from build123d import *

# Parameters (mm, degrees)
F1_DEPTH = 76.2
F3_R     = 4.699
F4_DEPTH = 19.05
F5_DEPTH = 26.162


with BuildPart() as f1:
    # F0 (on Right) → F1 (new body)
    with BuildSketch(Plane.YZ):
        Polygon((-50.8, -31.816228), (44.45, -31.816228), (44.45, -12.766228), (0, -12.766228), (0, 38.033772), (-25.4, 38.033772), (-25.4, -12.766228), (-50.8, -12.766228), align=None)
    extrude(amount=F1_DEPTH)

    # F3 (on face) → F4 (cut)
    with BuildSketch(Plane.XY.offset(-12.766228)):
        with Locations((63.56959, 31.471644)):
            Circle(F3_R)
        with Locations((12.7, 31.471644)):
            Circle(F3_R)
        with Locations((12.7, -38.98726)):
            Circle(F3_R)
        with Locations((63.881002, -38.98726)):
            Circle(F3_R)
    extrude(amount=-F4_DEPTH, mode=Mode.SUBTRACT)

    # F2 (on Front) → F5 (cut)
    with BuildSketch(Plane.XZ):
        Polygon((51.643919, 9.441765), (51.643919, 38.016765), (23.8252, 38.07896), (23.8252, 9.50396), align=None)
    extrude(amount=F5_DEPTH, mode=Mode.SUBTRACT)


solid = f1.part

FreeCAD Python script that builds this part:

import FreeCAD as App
import Part
import Sketcher

V = App.Vector
Q = App.Units.Quantity


def add_polygon(sketch, points):
    """Adds a closed chain of lines whose ends are joined by coincident constraints."""
    first, n = sketch.GeometryCount, len(points)
    for a, b in zip(points, points[1:] + points[:1]):
        sketch.addGeometry(Part.LineSegment(App.Vector(*a, 0), App.Vector(*b, 0)), False)
    for i in range(n):
        sketch.addConstraint(Sketcher.Constraint("Coincident", first + i, 2, first + (i + 1) % n, 1))

doc = App.newDocument("Part")
body = doc.addObject("PartDesign::Body", "Body")

# Sketch on YZ plane
sketch1 = body.newObject("Sketcher::SketchObject", "Sketch")
sketch1.AttachmentSupport = (doc.getObject("YZ_Plane"), [""])
sketch1.MapMode = "FlatFace"
add_polygon(sketch1, [(-50.8, -31.816228), (44.45, -31.816228), (44.45, -12.766228), (0, -12.766228), (0, 38.033772), (-25.4, 38.033772), (-25.4, -12.766228), (-50.8, -12.766228)])  # lines 0-7
sketch1.addConstraint([
    Sketcher.Constraint("Horizontal", 0),
    Sketcher.Constraint("Vertical", 1),
    Sketcher.Constraint("Horizontal", 2),
    Sketcher.Constraint("Vertical", 3),
    Sketcher.Constraint("Horizontal", 4),
    Sketcher.Constraint("Vertical", 5),
    Sketcher.Constraint("Horizontal", 6),
    Sketcher.Constraint("Vertical", 7),
    Sketcher.Constraint("PointOnObject", 2, 2, -2),
    Sketcher.Constraint("Horizontal", 2, 2, 5, 2),
    Sketcher.Constraint("Equal", 4, 6),
    Sketcher.Constraint("DistanceX", 4, 2, 4, 1, Q("1 in")),
    Sketcher.Constraint("DistanceY", 3, 1, 3, 2, Q("2 in")),
    Sketcher.Constraint("DistanceX", 0, 1, 0, 2, Q("3.75 in")),
    Sketcher.Constraint("DistanceY", 1, 1, 1, 2, Q("0.75 in")),
    Sketcher.Constraint("DistanceY", 0, 2, -1, 1, Q("31.816228 mm")),
])
pad1 = body.newObject("PartDesign::Pad", "Pad")
pad1.Profile = sketch1
pad1.Length = Q("3 in")

# Sketch on XY plane
sketch2 = body.newObject("Sketcher::SketchObject", "Sketch001")
sketch2.AttachmentSupport = (doc.getObject("XY_Plane"), [""])
sketch2.MapMode = "FlatFace"
sketch2.AttachmentOffset = App.Placement(V(0, 0, -12.766228), App.Rotation())
sketch2.addGeometry([
    Part.Circle(V(63.56959, 31.471644, 0), V(0, 0, 1), 4.699),
    Part.Circle(V(12.7, 31.471644, 0), V(0, 0, 1), 4.699),
    Part.Circle(V(12.7, -38.98726, 0), V(0, 0, 1), 4.699),
    Part.Circle(V(63.881002, -38.98726, 0), V(0, 0, 1), 4.699),
], False)
sketch2.addConstraint([
    Sketcher.Constraint("Equal", 0, 1),
    Sketcher.Constraint("Equal", 1, 2),
    Sketcher.Constraint("Equal", 2, 3),
    Sketcher.Constraint("Horizontal", 0, 3, 1, 3),
    Sketcher.Constraint("Horizontal", 2, 3, 3, 3),
    Sketcher.Constraint("Vertical", 1, 3, 2, 3),
    Sketcher.Constraint("Diameter", 0, Q("0.37 in")),
    Sketcher.Constraint("DistanceX", -1, 1, 1, 3, Q("0.5 in")),
    Sketcher.Constraint("DistanceX", -1, 1, 3, 3, Q("2.5150001 in")),
    Sketcher.Constraint("DistanceX", -1, 1, 0, 3, Q("63.56959 mm")),
    Sketcher.Constraint("DistanceY", 2, 3, -1, 1, Q("38.98726 mm")),
    Sketcher.Constraint("DistanceY", -1, 1, 0, 3, Q("31.471644 mm")),
])
pocket1 = body.newObject("PartDesign::Pocket", "Pocket")
pocket1.Profile = sketch2
pocket1.Length = Q("0.75 in")

# Sketch on XZ plane
sketch3 = body.newObject("Sketcher::SketchObject", "Sketch002")
sketch3.AttachmentSupport = (doc.getObject("XZ_Plane"), [""])
sketch3.MapMode = "FlatFace"
add_polygon(sketch3, [(51.643919, 9.441765), (51.643919, 38.016765), (23.8252, 38.07896), (23.8252, 9.50396)])  # lines 0-3
sketch3.addConstraint([
    Sketcher.Constraint("Vertical", 0),
    Sketcher.Constraint("Vertical", 2),
    Sketcher.Constraint("Parallel", 1, 3),
    Sketcher.Constraint("DistanceY", 0, 1, 0, 2, Q("1.125 in")),
    Sketcher.Constraint("DistanceX", -1, 1, 1, 2, Q("0.938 in")),
    Sketcher.Constraint("Distance", 1, Q("27.818789 mm")),
    Sketcher.Constraint("DistanceY", -1, 1, 1, 2, Q("38.07896 mm")),
    Sketcher.Constraint("DistanceY", -1, 1, 0, 2, Q("38.016765 mm")),
])
pocket2 = body.newObject("PartDesign::Pocket", "Pocket001")
pocket2.Profile = sketch3
pocket2.Length = Q("1.03 in")
pocket2.Reversed = True

doc.recompute()
